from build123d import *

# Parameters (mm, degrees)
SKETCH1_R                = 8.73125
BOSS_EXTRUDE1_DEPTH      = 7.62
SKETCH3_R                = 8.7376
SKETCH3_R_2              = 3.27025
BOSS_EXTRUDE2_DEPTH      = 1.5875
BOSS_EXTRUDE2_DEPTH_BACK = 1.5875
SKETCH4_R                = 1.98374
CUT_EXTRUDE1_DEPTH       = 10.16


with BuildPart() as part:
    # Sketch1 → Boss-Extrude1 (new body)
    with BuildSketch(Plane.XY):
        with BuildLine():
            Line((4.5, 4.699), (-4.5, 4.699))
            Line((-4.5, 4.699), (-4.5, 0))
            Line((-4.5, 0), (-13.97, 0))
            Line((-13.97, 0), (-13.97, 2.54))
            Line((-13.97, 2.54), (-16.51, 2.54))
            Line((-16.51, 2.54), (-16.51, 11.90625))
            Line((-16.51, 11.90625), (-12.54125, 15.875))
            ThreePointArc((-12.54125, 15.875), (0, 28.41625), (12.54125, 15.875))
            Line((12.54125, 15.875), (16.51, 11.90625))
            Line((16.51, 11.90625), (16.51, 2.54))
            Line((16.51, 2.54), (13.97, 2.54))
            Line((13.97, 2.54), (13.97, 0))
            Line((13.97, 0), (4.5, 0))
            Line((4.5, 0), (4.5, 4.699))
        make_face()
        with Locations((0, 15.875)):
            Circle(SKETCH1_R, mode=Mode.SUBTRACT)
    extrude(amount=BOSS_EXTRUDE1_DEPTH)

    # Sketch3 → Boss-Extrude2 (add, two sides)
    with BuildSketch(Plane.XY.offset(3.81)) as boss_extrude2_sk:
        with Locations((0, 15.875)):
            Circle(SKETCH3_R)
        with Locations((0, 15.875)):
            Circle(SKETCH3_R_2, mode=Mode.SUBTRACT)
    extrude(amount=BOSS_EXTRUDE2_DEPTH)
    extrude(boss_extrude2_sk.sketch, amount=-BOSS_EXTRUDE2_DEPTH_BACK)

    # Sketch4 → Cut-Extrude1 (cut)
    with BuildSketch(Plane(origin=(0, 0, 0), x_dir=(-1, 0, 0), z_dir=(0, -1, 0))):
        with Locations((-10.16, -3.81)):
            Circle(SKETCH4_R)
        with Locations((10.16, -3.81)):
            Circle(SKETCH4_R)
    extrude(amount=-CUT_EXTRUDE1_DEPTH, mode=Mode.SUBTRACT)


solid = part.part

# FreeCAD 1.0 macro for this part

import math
import FreeCAD as App
import Part
import Sketcher

V = App.Vector
Q = App.Units.Quantity

doc = App.newDocument("Part")
body = doc.addObject("PartDesign::Body", "Body")

# Sketch on XY plane
sketch1 = body.newObject("Sketcher::SketchObject", "Sketch")
sketch1.AttachmentSupport = (doc.getObject("XY_Plane"), [""])
sketch1.MapMode = "FlatFace"
sketch1.addGeometry([
    Part.LineSegment(V(-4.5, 4.7, 0), V(4.5, 4.7, 0)),  # 0
    Part.LineSegment(V(4.5, 4.7, 0), V(4.5, 0, 0)),  # 1
    Part.LineSegment(V(4.5, 0, 0), V(14, 0, 0)),  # 2
    Part.LineSegment(V(14, 0, 0), V(14, 2.5, 0)),  # 3
    Part.LineSegment(V(14, 2.5, 0), V(16.5, 2.5, 0)),  # 4
    Part.LineSegment(V(16.5, 2.5, 0), V(16.5, 11.9, 0)),  # 5
    Part.LineSegment(V(16.5, 11.9, 0), V(12.5, 15.9, 0)),  # 6
    Part.ArcOfCircle(Part.Circle(V(0, 15.9, 0), V(0, 0, 1), 12.5), math.radians(0), math.radians(180)),  # 7
    Part.LineSegment(V(-12.5, 15.9, 0), V(-16.5, 11.9, 0)),  # 8
    Part.LineSegment(V(-16.5, 11.9, 0), V(-16.5, 2.5, 0)),  # 9
    Part.LineSegment(V(-16.5, 2.5, 0), V(-14, 2.5, 0)),  # 10
    Part.LineSegment(V(-14, 2.5, 0), V(-14, 0, 0)),  # 11
    Part.LineSegment(V(-14, 0, 0), V(-4.5, 0, 0)),  # 12
    Part.LineSegment(V(-4.5, 0, 0), V(-4.5, 4.7, 0)),  # 13
    Part.Circle(V(0, 15.9, 0), V(0, 0, 1), 8.7),  # 14
], False)
sketch1.addConstraint([
    Sketcher.Constraint("Coincident", 0, 2, 1, 1),
    Sketcher.Constraint("Coincident", 1, 2, 2, 1),
    Sketcher.Constraint("Coincident", 2, 2, 3, 1),
    Sketcher.Constraint("Coincident", 3, 2, 4, 1),
    Sketcher.Constraint("Coincident", 4, 2, 5, 1),
    Sketcher.Constraint("Coincident", 5, 2, 6, 1),
    Sketcher.Constraint("Coincident", 6, 2, 7, 1),
    Sketcher.Constraint("Coincident", 7, 2, 8, 1),
    Sketcher.Constraint("Coincident", 8, 2, 9, 1),
    Sketcher.Constraint("Coincident", 9, 2, 10, 1),
    Sketcher.Constraint("Coincident", 10, 2, 11, 1),
    Sketcher.Constraint("Coincident", 11, 2, 12, 1),
    Sketcher.Constraint("Coincident", 12, 2, 13, 1),
    Sketcher.Constraint("Coincident", 13, 2, 0, 1),
    Sketcher.Constraint("Horizontal", 0),
    Sketcher.Constraint("Vertical", 1),
    Sketcher.Constraint("Horizontal", 2),
    Sketcher.Constraint("Vertical", 3),
    Sketcher.Constraint("Horizontal", 4),
    Sketcher.Constraint("Vertical", 5),
    Sketcher.Constraint("Vertical", 9),
    Sketcher.Constraint("Horizontal", 10),
    Sketcher.Constraint("Vertical", 11),
    Sketcher.Constraint("Horizontal", 12),
    Sketcher.Constraint("Vertical", 13),
    Sketcher.Constraint("Coincident", 14, 3, 7, 3),
    Sketcher.Constraint("Symmetric", 2, 2, 11, 2, -1, 1),
    Sketcher.Constraint("Symmetric", 6, 2, 7, 2, -2),
    Sketcher.Constraint("Symmetric", 5, 2, 8, 2, -2),
    Sketcher.Constraint("Symmetric", 1, 2, 12, 2, -2),
    Sketcher.Constraint("Perpendicular", 6, 8),
    Sketcher.Constraint("Horizontal", 14, 3, 6, 2),
    Sketcher.Constraint("Horizontal", 4, 2, 9, 2),
    Sketcher.Constraint("Equal", 10, 3),
    Sketcher.Constraint("Diameter", 14, Q("0.6875 in")),
    Sketcher.Constraint("DistanceX", 4, 1, 4, 2, Q("0.1 in")),
    Sketcher.Constraint("DistanceY", 1, 2, 1, 1, Q("0.185 in")),
    Sketcher.Constraint("DistanceX", -1, 1, 2, 2, Q("0.55 in")),
    Sketcher.Constraint("DistanceY", 0, 2, 7, 3, Q("0.44 in")),
    Sketcher.Constraint("DistanceY", -1, 1, 5, 2, Q("0.46875 in")),
    Sketcher.Constraint("DistanceX", 0, 1, 0, 2, 9.0),
])
pad1 = body.newObject("PartDesign::Pad", "Pad")
pad1.Profile = sketch1
pad1.Length = Q("0.3 in")

# Sketch on XY plane
sketch2 = body.newObject("Sketcher::SketchObject", "Sketch001")
sketch2.AttachmentSupport = (doc.getObject("XY_Plane"), [""])
sketch2.MapMode = "FlatFace"
sketch2.AttachmentOffset = App.Placement(V(0, 0, 0.15 * 25.4), App.Rotation())
sketch2.addGeometry([
    Part.Circle(V(0, 15.9, 0), V(0, 0, 1), 8.7),
    Part.Circle(V(0, 15.9, 0), V(0, 0, 1), 3.3),
], False)
sketch2.addConstraint([
    Sketcher.Constraint("Coincident", 1, 3, 0, 3),
    Sketcher.Constraint("PointOnObject", 0, 3, -2),
    Sketcher.Constraint("Diameter", 0, Q("0.688 in")),
    Sketcher.Constraint("Diameter", 1, Q("0.2575 in")),
    Sketcher.Constraint("DistanceY", -1, 1, 0, 3, Q("0.625 in")),
])
pad2 = body.newObject("PartDesign::Pad", "Pad001")
pad2.Profile = sketch2
pad2.Type = "TwoLengths"
pad2.Length = Q("0.0625 in")
pad2.Length2 = Q("0.0625 in")

# Sketch on XZ plane
sketch3 = body.newObject("Sketcher::SketchObject", "Sketch002")
sketch3.AttachmentSupport = (doc.getObject("XZ_Plane"), [""])
sketch3.MapMode = "FlatFace"
sketch3.addGeometry([
    Part.Circle(V(10.2, 3.8, 0), V(0, 0, 1), 2),
    Part.Circle(V(-10.2, 3.8, 0), V(0, 0, 1), 2),
], False)
sketch3.addConstraint([
    Sketcher.Constraint("Equal", 0, 1),
    Sketcher.Constraint("Symmetric", 0, 3, 1, 3, -2),
    Sketcher.Constraint("Diameter", 0, Q("0.1562 in")),
    Sketcher.Constraint("DistanceX", -1, 1, 0, 3, Q("0.4 in")),
    Sketcher.Constraint("DistanceY", -1, 1, 0, 3, Q("0.15 in")),
])
pocket1 = body.newObject("PartDesign::Pocket", "Pocket")
pocket1.Profile = sketch3
pocket1.Length = Q("0.4 in")

doc.recompute()
